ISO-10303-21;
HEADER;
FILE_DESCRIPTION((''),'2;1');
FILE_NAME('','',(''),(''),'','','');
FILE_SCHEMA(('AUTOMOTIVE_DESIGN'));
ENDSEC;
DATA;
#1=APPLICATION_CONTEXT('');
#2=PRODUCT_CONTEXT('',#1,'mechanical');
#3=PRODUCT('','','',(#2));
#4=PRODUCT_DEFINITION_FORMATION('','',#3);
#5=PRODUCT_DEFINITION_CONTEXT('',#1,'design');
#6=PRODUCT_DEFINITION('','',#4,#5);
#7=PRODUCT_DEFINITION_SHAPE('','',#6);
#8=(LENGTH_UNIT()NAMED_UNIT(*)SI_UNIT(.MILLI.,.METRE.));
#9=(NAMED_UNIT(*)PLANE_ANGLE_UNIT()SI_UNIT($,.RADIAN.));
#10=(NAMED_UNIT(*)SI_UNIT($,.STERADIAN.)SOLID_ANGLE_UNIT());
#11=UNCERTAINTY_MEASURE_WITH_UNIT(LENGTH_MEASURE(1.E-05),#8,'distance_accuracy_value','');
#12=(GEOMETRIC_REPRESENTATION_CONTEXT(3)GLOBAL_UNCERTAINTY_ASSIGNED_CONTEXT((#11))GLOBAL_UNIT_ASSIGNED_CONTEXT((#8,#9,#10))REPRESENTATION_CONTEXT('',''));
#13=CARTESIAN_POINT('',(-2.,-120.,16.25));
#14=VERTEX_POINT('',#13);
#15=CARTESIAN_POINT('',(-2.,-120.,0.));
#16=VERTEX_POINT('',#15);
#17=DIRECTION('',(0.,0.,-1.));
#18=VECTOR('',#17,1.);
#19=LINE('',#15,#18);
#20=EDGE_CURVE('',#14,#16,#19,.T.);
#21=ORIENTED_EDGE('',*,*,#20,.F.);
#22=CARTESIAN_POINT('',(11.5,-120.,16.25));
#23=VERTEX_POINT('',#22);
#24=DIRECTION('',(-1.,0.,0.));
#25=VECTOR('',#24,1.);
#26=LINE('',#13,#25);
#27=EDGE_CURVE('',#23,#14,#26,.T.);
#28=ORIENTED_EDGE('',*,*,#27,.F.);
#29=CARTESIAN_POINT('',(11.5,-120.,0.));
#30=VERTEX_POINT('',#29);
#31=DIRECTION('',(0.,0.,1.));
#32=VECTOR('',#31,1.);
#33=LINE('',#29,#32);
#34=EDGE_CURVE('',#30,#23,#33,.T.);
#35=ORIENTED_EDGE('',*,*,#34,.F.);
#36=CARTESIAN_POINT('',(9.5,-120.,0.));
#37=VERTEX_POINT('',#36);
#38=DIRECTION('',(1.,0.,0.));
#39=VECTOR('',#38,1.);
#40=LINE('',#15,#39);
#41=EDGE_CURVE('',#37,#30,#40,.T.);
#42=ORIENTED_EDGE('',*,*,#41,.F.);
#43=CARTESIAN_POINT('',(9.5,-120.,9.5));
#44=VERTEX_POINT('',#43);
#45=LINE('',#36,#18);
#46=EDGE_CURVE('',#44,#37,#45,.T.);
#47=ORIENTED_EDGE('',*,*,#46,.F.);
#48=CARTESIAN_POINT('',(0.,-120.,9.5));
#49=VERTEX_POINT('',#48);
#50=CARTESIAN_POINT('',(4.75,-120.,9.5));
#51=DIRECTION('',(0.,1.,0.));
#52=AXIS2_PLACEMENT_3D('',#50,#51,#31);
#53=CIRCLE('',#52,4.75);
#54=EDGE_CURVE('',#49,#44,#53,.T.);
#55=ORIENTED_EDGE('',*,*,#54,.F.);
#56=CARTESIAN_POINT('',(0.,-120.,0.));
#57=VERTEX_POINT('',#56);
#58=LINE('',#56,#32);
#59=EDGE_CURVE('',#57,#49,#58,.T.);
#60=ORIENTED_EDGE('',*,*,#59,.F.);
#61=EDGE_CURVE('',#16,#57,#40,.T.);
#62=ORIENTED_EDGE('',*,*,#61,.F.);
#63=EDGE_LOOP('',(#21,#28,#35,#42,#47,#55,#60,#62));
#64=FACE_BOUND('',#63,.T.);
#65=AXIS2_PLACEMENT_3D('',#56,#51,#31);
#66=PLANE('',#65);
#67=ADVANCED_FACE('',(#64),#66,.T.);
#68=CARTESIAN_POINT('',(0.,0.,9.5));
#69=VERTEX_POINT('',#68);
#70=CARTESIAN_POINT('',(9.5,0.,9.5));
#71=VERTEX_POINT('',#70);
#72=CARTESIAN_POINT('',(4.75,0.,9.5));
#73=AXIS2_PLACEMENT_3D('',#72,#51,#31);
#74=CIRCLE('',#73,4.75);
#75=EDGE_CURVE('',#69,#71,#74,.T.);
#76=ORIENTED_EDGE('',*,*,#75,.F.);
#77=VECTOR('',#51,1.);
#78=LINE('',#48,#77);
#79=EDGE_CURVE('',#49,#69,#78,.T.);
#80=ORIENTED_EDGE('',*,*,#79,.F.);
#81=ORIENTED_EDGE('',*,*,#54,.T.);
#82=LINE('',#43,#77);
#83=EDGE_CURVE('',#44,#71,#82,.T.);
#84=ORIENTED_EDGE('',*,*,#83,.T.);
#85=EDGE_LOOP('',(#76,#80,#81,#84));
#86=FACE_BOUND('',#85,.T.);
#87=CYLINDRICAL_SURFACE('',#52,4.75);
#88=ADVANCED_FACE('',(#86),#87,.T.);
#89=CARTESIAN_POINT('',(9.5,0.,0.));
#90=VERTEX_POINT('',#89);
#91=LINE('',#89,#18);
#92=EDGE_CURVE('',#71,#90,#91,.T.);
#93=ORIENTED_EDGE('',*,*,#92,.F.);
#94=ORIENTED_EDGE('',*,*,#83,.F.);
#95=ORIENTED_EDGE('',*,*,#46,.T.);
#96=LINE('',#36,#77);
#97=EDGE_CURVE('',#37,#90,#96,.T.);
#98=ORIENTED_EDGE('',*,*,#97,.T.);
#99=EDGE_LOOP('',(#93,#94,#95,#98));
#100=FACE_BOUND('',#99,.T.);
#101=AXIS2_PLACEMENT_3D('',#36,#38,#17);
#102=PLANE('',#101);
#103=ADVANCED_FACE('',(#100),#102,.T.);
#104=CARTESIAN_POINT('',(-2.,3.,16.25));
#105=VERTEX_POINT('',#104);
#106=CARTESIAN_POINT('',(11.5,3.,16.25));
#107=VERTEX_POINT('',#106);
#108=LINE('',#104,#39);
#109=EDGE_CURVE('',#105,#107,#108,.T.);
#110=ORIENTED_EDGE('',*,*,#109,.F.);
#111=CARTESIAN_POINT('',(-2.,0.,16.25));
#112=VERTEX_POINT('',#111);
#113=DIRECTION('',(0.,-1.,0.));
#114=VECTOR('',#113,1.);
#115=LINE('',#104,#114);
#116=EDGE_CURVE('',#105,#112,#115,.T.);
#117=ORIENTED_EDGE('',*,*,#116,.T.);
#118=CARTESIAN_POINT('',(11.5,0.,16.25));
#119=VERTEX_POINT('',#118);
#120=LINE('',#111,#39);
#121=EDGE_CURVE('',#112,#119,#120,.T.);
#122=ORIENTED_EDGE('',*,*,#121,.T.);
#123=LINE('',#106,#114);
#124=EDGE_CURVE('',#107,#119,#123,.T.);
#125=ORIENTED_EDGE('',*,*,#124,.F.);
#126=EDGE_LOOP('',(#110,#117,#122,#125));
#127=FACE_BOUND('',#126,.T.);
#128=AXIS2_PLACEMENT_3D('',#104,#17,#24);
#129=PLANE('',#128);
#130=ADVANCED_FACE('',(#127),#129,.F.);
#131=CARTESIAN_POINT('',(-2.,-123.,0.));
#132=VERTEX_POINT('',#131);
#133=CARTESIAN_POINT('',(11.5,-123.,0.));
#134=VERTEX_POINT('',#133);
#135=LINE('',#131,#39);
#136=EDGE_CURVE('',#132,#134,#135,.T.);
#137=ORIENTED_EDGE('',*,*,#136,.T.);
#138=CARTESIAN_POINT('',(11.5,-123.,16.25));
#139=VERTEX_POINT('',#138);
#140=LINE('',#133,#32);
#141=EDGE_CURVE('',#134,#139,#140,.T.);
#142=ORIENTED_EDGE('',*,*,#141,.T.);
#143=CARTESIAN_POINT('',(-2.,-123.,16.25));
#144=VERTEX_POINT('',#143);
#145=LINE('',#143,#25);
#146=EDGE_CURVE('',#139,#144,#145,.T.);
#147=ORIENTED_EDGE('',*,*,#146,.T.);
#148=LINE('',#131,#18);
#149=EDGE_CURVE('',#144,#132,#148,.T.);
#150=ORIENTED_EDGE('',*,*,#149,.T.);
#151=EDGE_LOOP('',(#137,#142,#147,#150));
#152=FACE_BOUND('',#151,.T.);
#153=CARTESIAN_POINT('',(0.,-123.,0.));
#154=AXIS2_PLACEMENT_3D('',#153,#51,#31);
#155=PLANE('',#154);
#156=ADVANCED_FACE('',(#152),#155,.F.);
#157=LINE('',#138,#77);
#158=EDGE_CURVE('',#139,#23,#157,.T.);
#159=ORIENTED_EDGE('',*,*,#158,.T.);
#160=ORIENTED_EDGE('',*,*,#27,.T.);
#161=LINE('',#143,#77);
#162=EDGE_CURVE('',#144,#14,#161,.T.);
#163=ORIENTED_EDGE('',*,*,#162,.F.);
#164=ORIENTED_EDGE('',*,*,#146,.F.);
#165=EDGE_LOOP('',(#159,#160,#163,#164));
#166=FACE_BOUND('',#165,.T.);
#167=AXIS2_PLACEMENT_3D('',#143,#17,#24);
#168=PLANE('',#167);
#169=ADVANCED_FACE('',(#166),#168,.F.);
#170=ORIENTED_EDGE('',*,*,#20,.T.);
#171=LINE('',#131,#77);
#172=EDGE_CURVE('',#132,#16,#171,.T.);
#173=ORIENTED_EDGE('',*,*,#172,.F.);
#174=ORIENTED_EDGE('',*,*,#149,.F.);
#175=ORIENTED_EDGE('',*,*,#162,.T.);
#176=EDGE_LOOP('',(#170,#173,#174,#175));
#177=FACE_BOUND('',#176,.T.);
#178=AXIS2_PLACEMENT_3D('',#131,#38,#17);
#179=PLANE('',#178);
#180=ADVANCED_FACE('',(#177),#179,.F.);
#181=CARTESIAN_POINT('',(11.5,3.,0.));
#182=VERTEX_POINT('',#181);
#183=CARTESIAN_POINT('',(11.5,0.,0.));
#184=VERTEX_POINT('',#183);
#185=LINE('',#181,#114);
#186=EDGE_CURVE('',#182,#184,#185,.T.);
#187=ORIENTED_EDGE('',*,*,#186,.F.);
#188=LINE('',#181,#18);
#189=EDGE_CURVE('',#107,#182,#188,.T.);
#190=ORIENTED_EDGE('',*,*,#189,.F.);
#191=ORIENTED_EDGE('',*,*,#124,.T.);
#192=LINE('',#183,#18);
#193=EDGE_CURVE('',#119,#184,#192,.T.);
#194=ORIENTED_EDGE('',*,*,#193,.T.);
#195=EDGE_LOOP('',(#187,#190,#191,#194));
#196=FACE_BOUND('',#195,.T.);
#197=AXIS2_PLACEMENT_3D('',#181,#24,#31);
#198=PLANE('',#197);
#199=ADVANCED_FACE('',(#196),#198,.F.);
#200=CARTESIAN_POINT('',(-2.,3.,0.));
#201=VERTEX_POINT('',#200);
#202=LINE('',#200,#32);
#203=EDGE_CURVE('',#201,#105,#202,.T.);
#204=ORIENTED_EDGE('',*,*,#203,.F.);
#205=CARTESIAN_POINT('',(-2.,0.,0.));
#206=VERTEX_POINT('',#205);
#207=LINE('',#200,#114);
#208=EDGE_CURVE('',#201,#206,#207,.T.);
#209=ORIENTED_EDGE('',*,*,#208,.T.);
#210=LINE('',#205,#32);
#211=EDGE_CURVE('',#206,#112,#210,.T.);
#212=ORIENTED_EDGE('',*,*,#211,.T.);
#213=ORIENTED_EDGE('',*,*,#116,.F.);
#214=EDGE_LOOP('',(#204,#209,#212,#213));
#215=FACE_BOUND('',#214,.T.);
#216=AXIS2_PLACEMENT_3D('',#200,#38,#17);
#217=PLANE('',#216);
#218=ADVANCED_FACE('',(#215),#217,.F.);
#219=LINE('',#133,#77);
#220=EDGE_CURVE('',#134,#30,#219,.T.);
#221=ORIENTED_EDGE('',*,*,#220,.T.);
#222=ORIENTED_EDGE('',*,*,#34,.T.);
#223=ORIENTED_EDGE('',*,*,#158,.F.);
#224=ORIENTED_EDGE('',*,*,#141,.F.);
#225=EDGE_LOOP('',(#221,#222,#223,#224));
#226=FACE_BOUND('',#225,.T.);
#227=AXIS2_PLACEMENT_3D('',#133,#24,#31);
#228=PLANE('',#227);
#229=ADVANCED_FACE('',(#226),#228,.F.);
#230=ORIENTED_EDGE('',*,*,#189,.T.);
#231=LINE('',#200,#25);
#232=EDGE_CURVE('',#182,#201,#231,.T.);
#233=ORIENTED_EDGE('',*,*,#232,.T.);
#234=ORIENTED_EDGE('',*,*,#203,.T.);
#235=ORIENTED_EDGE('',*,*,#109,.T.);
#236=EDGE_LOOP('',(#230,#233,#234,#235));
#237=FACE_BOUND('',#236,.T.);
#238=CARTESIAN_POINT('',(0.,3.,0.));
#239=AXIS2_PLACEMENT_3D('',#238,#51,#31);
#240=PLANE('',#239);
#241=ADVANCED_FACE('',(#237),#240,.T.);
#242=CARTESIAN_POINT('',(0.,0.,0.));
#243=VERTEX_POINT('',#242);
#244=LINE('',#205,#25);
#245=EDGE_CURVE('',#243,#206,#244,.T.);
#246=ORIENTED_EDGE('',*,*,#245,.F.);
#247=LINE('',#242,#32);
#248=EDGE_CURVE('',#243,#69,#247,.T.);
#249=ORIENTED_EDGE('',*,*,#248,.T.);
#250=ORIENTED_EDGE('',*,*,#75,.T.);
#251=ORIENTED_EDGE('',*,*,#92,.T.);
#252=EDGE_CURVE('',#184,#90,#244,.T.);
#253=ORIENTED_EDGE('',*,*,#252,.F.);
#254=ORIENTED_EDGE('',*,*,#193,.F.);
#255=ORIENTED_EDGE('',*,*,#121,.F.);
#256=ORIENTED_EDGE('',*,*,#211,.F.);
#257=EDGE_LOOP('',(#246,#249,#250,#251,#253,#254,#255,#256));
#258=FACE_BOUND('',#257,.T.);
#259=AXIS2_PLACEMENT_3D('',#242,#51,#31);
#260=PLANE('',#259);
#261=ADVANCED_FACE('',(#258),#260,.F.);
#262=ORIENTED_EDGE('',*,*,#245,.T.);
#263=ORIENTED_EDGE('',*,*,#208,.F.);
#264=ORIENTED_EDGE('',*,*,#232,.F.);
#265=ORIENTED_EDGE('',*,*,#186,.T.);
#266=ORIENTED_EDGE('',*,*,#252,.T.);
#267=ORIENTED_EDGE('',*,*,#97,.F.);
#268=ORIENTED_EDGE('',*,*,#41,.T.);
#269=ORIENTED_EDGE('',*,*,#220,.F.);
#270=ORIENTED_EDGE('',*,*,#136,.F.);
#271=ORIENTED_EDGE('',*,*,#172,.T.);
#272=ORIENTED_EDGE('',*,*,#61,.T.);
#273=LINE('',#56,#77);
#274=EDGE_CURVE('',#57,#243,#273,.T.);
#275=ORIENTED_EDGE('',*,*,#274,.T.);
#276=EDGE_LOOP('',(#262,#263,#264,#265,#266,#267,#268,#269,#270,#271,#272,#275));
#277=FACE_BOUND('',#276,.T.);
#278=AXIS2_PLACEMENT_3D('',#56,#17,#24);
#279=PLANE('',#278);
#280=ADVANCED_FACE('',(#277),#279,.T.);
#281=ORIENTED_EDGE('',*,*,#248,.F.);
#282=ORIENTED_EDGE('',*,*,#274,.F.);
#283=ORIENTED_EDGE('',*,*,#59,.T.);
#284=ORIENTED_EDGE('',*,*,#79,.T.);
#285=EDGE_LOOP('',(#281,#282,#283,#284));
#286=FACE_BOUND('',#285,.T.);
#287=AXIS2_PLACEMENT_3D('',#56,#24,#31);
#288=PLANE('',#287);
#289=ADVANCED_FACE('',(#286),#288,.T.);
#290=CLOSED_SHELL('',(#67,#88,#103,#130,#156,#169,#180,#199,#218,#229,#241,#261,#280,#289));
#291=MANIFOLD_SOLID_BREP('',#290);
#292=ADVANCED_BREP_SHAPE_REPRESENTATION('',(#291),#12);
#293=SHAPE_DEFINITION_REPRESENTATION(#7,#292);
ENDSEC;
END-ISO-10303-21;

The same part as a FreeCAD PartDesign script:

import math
import FreeCAD as App
import Part
import Sketcher

V = App.Vector


def add_polygon(sketch, points):
    """Adds a closed chain of lines whose ends are joined by coincident constraints."""
    first, n = sketch.GeometryCount, len(points)
    for a, b in zip(points, points[1:] + points[:1]):
        sketch.addGeometry(Part.LineSegment(App.Vector(*a, 0), App.Vector(*b, 0)), False)
    for i in range(n):
        sketch.addConstraint(Sketcher.Constraint("Coincident", first + i, 2, first + (i + 1) % n, 1))

doc = App.newDocument("Part")
params = doc.addObject("Spreadsheet::Sheet", "Params")
for row, (alias, value) in enumerate([
    ("sketch1_radius", "4.75 mm"),
    ("pad1_length", "120 mm"),
    ("sketch2_width", "13.5 mm"),
    ("sketch2_height", "16.25 mm"),
    ("pad2_length", "3 mm"),
    ("sketch3_width", "13.5 mm"),
    ("sketch3_height", "16.25 mm"),
    ("pad3_length", "3 mm"),
], start=1):
    params.set(f"A{row}", alias)
    params.set(f"B{row}", "=" + value)
    params.setAlias(f"B{row}", alias)

body = doc.addObject("PartDesign::Body", "Body")

# Sketch on XZ plane
sketch1 = body.newObject("Sketcher::SketchObject", "Sketch")
sketch1.AttachmentSupport = (doc.getObject("XZ_Plane"), [""])
sketch1.MapMode = "FlatFace"
sketch1.addGeometry([
    Part.LineSegment(V(9.5, 0, 0), V(0, 0, 0)),
    Part.LineSegment(V(0, 0, 0), V(0, 9.5, 0)),
    Part.ArcOfCircle(Part.Circle(V(4.8, 9.5, 0), V(0, 0, 1), 4.8), math.radians(0), math.radians(180)),
    Part.LineSegment(V(9.5, 9.5, 0), V(9.5, 0, 0)),
], False)
sketch1.addConstraint([
    Sketcher.Constraint("Coincident", 0, 2, 1, 1),
    Sketcher.Constraint("Tangent", 1, 2, 2, 2),
    Sketcher.Constraint("Tangent", 2, 1, 3, 1),
    Sketcher.Constraint("Coincident", 3, 2, 0, 1),
    Sketcher.Constraint("Horizontal", 0),
    Sketcher.Constraint("Vertical", 1),
    Sketcher.Constraint("Vertical", 3),
    Sketcher.Constraint("Coincident", 0, 2, -1, 1),
    Sketcher.Constraint("Equal", 0, 1),
    Sketcher.Constraint("Radius", 2, 4.75),
])
sketch1.setExpression("Constraints[9]", "Params.sketch1_radius")
pad1 = body.newObject("PartDesign::Pad", "Pad")
pad1.Profile = sketch1
pad1.setExpression("Length", "Params.pad1_length")

# Sketch on XZ plane
sketch2 = body.newObject("Sketcher::SketchObject", "Sketch001")
sketch2.AttachmentSupport = (doc.getObject("XZ_Plane"), [""])
sketch2.MapMode = "FlatFace"
sketch2.AttachmentOffset = App.Placement(V(0, 0, 120), App.Rotation())
add_polygon(sketch2, [(-2, 16), (-2, 0), (12, 0), (12, 16)])  # lines 0-3
sketch2.addConstraint([
    Sketcher.Constraint("Vertical", 0),
    Sketcher.Constraint("Horizontal", 1),
    Sketcher.Constraint("Vertical", 2),
    Sketcher.Constraint("Horizontal", 3),
    Sketcher.Constraint("PointOnObject", 0, 2, -1),
    Sketcher.Constraint("DistanceX", 1, 1, 1, 2, 13.5),
    Sketcher.Constraint("DistanceX", 0, 2, -1, 1, 2.0),
    Sketcher.Constraint("DistanceY", 0, 2, 0, 1, 16.25),
])
sketch2.setExpression("Constraints[9]", "Params.sketch2_width")
sketch2.setExpression("Constraints[11]", "Params.sketch2_height")
pad2 = body.newObject("PartDesign::Pad", "Pad001")
pad2.Profile = sketch2
pad2.setExpression("Length", "Params.pad2_length")

# Sketch on XZ plane
sketch3 = body.newObject("Sketcher::SketchObject", "Sketch002")
sketch3.AttachmentSupport = (doc.getObject("XZ_Plane"), [""])
sketch3.MapMode = "FlatFace"
add_polygon(sketch3, [(-2, 0), (-2, 16), (12, 16), (12, 0)])  # lines 0-3
sketch3.addConstraint([
    Sketcher.Constraint("Vertical", 0),
    Sketcher.Constraint("Horizontal", 1),
    Sketcher.Constraint("Vertical", 2),
    Sketcher.Constraint("Horizontal", 3),
    Sketcher.Constraint("PointOnObject", 2, 2, -1),
    Sketcher.Constraint("DistanceX", 1, 1, 1, 2, 13.5),
    Sketcher.Constraint("DistanceX", 0, 2, -1, 1, 2.0),
    Sketcher.Constraint("DistanceY", 0, 1, 0, 2, 16.25),
])
sketch3.setExpression("Constraints[9]", "Params.sketch3_width")
sketch3.setExpression("Constraints[11]", "Params.sketch3_height")
pad3 = body.newObject("PartDesign::Pad", "Pad002")
pad3.Profile = sketch3
pad3.setExpression("Length", "Params.pad3_length")
pad3.Reversed = True

doc.recompute()
